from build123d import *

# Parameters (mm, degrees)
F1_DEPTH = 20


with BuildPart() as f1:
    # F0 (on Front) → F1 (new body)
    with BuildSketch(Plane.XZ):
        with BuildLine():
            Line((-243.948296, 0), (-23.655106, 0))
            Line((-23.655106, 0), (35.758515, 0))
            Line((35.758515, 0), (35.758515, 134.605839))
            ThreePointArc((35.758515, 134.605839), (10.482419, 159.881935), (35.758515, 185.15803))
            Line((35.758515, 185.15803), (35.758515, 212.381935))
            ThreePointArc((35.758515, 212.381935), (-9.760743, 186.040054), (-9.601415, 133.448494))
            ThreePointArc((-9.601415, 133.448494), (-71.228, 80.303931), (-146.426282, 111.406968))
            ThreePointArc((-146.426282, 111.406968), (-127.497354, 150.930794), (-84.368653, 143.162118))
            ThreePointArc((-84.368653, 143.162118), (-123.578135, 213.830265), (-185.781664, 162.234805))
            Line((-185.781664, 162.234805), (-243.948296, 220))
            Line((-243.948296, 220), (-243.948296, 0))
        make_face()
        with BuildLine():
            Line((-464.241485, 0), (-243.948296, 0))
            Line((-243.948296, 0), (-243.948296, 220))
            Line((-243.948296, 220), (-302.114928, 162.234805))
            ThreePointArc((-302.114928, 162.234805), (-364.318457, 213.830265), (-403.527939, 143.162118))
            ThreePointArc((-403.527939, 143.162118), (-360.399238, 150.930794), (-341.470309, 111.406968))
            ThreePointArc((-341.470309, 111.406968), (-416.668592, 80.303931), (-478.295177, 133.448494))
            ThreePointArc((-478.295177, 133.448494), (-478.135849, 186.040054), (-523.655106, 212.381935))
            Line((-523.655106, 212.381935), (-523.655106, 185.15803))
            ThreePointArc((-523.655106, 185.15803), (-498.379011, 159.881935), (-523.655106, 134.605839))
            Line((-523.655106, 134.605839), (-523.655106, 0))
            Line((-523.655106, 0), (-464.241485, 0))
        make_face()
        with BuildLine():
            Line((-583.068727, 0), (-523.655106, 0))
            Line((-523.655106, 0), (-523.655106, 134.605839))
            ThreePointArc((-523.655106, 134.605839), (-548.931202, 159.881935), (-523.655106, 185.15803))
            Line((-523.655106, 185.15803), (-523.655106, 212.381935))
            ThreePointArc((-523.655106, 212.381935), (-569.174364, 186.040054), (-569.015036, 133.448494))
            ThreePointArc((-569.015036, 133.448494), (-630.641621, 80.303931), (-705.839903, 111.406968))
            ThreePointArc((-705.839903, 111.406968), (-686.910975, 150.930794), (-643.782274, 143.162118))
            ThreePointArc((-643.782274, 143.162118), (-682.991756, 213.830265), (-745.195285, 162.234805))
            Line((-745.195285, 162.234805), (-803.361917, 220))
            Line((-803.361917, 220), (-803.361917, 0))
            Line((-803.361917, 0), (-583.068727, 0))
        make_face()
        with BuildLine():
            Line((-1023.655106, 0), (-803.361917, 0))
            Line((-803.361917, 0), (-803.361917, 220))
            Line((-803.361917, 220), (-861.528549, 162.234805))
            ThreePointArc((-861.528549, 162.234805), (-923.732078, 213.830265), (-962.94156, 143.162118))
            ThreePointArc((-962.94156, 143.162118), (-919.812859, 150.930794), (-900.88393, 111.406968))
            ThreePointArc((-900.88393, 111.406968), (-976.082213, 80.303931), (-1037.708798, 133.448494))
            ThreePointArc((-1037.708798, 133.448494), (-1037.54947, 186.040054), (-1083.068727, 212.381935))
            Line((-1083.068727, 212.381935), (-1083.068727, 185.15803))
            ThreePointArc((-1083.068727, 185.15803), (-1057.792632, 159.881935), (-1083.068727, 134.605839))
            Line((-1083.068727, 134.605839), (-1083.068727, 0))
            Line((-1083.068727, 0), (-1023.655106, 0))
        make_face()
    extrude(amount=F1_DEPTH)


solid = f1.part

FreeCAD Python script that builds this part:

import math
import FreeCAD as App
import Part
import Sketcher
from FreeCAD import Vector

doc = App.newDocument("Part")
body = doc.addObject("PartDesign::Body", "Body")

# Sketch on XZ plane
sketch1 = body.newObject("Sketcher::SketchObject", "Sketch")
sketch1.AttachmentSupport = (doc.getObject("XZ_Plane"), [""])
sketch1.MapMode = "FlatFace"
sketch1.addGeometry([
    Part.LineSegment(Vector(35.758515, 0, 0), Vector(35.758515, 134.605839, 0)),  # 0
    Part.ArcOfCircle(Part.Circle(Vector(35.758514, 159.881934, 0), Vector(0, 0, 1), 25.276096), math.radians(89.999999), math.radians(270.000001)),  # 1
    Part.LineSegment(Vector(35.758515, 185.15803, 0), Vector(35.758515, 212.381935, 0)),  # 2
    Part.ArcOfCircle(Part.Circle(Vector(35.758515, 159.881935, 0), Vector(0, 0, 1), 52.5), math.radians(90), math.radians(210.231439)),  # 3
    Part.ArcOfCircle(Part.Circle(Vector(-83.570226, 156.919474, 0), Vector(0, 0, 1), 77.603298), math.radians(-144.092638), math.radians(-17.604709)),  # 4
    Part.ArcOfCircle(Part.Circle(Vector(-111.030065, 118.74953, 0), Vector(0, 0, 1), 36.149763), math.radians(42.478855), math.radians(191.719179)),  # 5
    Part.ArcOfCircle(Part.Circle(Vector(-133.281664, 162.234805, 0), Vector(0, 0, 1), 52.5), math.radians(-21.302339), math.radians(180)),  # 6
    Part.LineSegment(Vector(-185.781664, 162.234805, 0), Vector(-243.948296, 220, 0)),  # 7
    Part.LineSegment(Vector(-243.948296, 220, 0), Vector(-302.114928, 162.234805, 0)),  # 8
    Part.ArcOfCircle(Part.Circle(Vector(-354.614928, 162.234805, 0), Vector(0, 0, 1), 52.5), math.radians(0), math.radians(201.302339)),  # 9
    Part.ArcOfCircle(Part.Circle(Vector(-376.866527, 118.749529, 0), Vector(0, 0, 1), 36.149764), math.radians(-11.719178), math.radians(137.521144)),  # 10
    Part.ArcOfCircle(Part.Circle(Vector(-404.326365, 156.919474, 0), Vector(0, 0, 1), 77.603299), math.radians(-162.395291), math.radians(-35.907362)),  # 11
    Part.ArcOfCircle(Part.Circle(Vector(-523.655107, 159.881935, 0), Vector(0, 0, 1), 52.5), math.radians(-30.231439), math.radians(89.999999)),  # 12
    Part.ArcOfCircle(Part.Circle(Vector(-523.655106, 159.881935, 0), Vector(0, 0, 1), 52.5), math.radians(90), math.radians(210.231439)),  # 13
    Part.ArcOfCircle(Part.Circle(Vector(-642.983847, 156.919474, 0), Vector(0, 0, 1), 77.603298), math.radians(-144.092638), math.radians(-17.604709)),  # 14
    Part.ArcOfCircle(Part.Circle(Vector(-670.443686, 118.74953, 0), Vector(0, 0, 1), 36.149763), math.radians(42.478855), math.radians(191.719179)),  # 15
    Part.ArcOfCircle(Part.Circle(Vector(-692.695285, 162.234805, 0), Vector(0, 0, 1), 52.5), math.radians(-21.302339), math.radians(180)),  # 16
    Part.LineSegment(Vector(-745.195285, 162.234805, 0), Vector(-803.361917, 220, 0)),  # 17
    Part.LineSegment(Vector(-803.361917, 220, 0), Vector(-861.528549, 162.234805, 0)),  # 18
    Part.ArcOfCircle(Part.Circle(Vector(-914.028549, 162.234805, 0), Vector(0, 0, 1), 52.5), math.radians(0), math.radians(201.302339)),  # 19
    Part.ArcOfCircle(Part.Circle(Vector(-936.280148, 118.749529, 0), Vector(0, 0, 1), 36.149764), math.radians(-11.719178), math.radians(137.521144)),  # 20
    Part.ArcOfCircle(Part.Circle(Vector(-963.739986, 156.919474, 0), Vector(0, 0, 1), 77.603299), math.radians(-162.395291), math.radians(-35.907362)),  # 21
    Part.ArcOfCircle(Part.Circle(Vector(-1083.068728, 159.881935, 0), Vector(0, 0, 1), 52.5), math.radians(-30.231439), math.radians(89.999999)),  # 22
    Part.LineSegment(Vector(-1083.068727, 212.381935, 0), Vector(-1083.068727, 185.15803, 0)),  # 23
    Part.ArcOfCircle(Part.Circle(Vector(-1083.068728, 159.881934, 0), Vector(0, 0, 1), 25.276096), math.radians(-89.999999), math.radians(89.999999)),  # 24
    Part.LineSegment(Vector(-1083.068727, 134.605839, 0), Vector(-1083.068727, 0, 0)),  # 25
    Part.LineSegment(Vector(-1083.068727, 0, 0), Vector(35.758515, 0, 0)),  # 26
    Part.Circle(Vector(-523.655106, 159.881934, 0), Vector(0, 0, 1), 25.276096),  # 27
], False)
sketch1.addConstraint([
    Sketcher.Constraint("Coincident", 0, 2, 1, 2),
    Sketcher.Constraint("Coincident", 1, 1, 2, 1),
    Sketcher.Constraint("Coincident", 2, 2, 3, 1),
    Sketcher.Constraint("Coincident", 3, 2, 4, 2),
    Sketcher.Constraint("Coincident", 4, 1, 5, 2),
    Sketcher.Constraint("Coincident", 5, 1, 6, 1),
    Sketcher.Constraint("Coincident", 6, 2, 7, 1),
    Sketcher.Constraint("Coincident", 7, 2, 8, 1),
    Sketcher.Constraint("Coincident", 8, 2, 9, 1),
    Sketcher.Constraint("Coincident", 9, 2, 10, 2),
    Sketcher.Constraint("Coincident", 10, 1, 11, 2),
    Sketcher.Constraint("Coincident", 11, 1, 12, 1),
    Sketcher.Constraint("Tangent", 12, 2, 13, 1),
    Sketcher.Constraint("Coincident", 13, 2, 14, 2),
    Sketcher.Constraint("Coincident", 14, 1, 15, 2),
    Sketcher.Constraint("Coincident", 15, 1, 16, 1),
    Sketcher.Constraint("Coincident", 16, 2, 17, 1),
    Sketcher.Constraint("Coincident", 17, 2, 18, 1),
    Sketcher.Constraint("Coincident", 18, 2, 19, 1),
    Sketcher.Constraint("Coincident", 19, 2, 20, 2),
    Sketcher.Constraint("Coincident", 20, 1, 21, 2),
    Sketcher.Constraint("Coincident", 21, 1, 22, 1),
    Sketcher.Constraint("Coincident", 22, 2, 23, 1),
    Sketcher.Constraint("Coincident", 23, 2, 24, 2),
    Sketcher.Constraint("Coincident", 24, 1, 25, 1),
    Sketcher.Constraint("Coincident", 25, 2, 26, 1),
    Sketcher.Constraint("Coincident", 26, 2, 0, 1),
    Sketcher.Constraint("Vertical", 0),
    Sketcher.Constraint("Vertical", 2),
    Sketcher.Constraint("Vertical", 23),
    Sketcher.Constraint("Vertical", 25),
    Sketcher.Constraint("Horizontal", 26),
    Sketcher.Constraint("Coincident", 3, 3, 1, 3),
    Sketcher.Constraint("Coincident", 24, 3, 22, 3),
    Sketcher.Constraint("Coincident", 27, 3, 12, 3),
    Sketcher.Constraint("Equal", 3, 6),
    Sketcher.Constraint("Equal", 6, 9),
    Sketcher.Constraint("Equal", 5, 10),
    Sketcher.Constraint("Equal", 4, 11),
    Sketcher.Constraint("Equal", 9, 12),
    Sketcher.Constraint("Equal", 12, 13),
    Sketcher.Constraint("Equal", 11, 14),
    Sketcher.Constraint("Equal", 10, 15),
    Sketcher.Constraint("Equal", 13, 16),
    Sketcher.Constraint("Equal", 16, 19),
    Sketcher.Constraint("Equal", 15, 20),
    Sketcher.Constraint("Equal", 14, 21),
    Sketcher.Constraint("Equal", 19, 22),
    Sketcher.Constraint("Equal", 1, 24),
    Sketcher.Constraint("Equal", 24, 27),
    Sketcher.Constraint("PointOnObject", 25, 2, -1),
    Sketcher.Constraint("Parallel", 7, 17),
    Sketcher.Constraint("Parallel", 8, 18),
    Sketcher.Constraint("Horizontal", 6, 3, 9, 3),
    Sketcher.Constraint("Horizontal", 5, 3, 10, 3),
    Sketcher.Constraint("Horizontal", 4, 3, 11, 3),
    Sketcher.Constraint("Horizontal", 3, 3, 12, 3),
    Sketcher.Constraint("Horizontal", 11, 3, 14, 3),
    Sketcher.Constraint("Horizontal", 10, 3, 15, 3),
    Sketcher.Constraint("Horizontal", 9, 3, 16, 3),
    Sketcher.Constraint("Horizontal", 16, 3, 19, 3),
    Sketcher.Constraint("Horizontal", 15, 3, 20, 3),
    Sketcher.Constraint("Horizontal", 14, 3, 21, 3),
    Sketcher.Constraint("Horizontal", 13, 3, 22, 3),
    Sketcher.Constraint("Horizontal", 19, 3, 6, 2),
    Sketcher.Constraint("Horizontal", 6, 2, 8, 2),
    Sketcher.Constraint("Horizontal", 5, 1, 9, 2),
    Sketcher.Constraint("Horizontal", 4, 1, 10, 1),
    Sketcher.Constraint("Horizontal", 3, 2, 11, 1),
    Sketcher.Constraint("Horizontal", 11, 1, 13, 2),
    Sketcher.Constraint("Horizontal", 10, 1, 14, 1),
    Sketcher.Constraint("Horizontal", 9, 2, 15, 1),
    Sketcher.Constraint("Horizontal", 8, 2, 16, 2),
    Sketcher.Constraint("Horizontal", 7, 2, 17, 2),
    Sketcher.Constraint("Horizontal", 16, 2, 18, 2),
    Sketcher.Constraint("Horizontal", 15, 1, 19, 2),
    Sketcher.Constraint("Horizontal", 14, 1, 20, 1),
    Sketcher.Constraint("Horizontal", 13, 2, 21, 1),
    Sketcher.Constraint("Vertical", 3, 3, 0, 2),
    Sketcher.Constraint("Vertical", 0, 2, 1, 1),
    Sketcher.Constraint("Vertical", 27, 3, 12, 2),
    Sketcher.Constraint("Vertical", 24, 3, 22, 2),
    Sketcher.Constraint("Vertical", 23, 2, 24, 1),
    Sketcher.Constraint("Equal", 7, 8),
    Sketcher.Constraint("Radius", 3, 52.5),
    Sketcher.Constraint("DistanceY", -1, 1, 7, 2, 220.0),
    Sketcher.Constraint("Radius", 4, 77.603298),
    Sketcher.Constraint("Diameter", 27, 50.552191),
    Sketcher.Constraint("Radius", 5, 36.149763),
    Sketcher.Constraint("DistanceX", 26, 1, 26, 2, 1118.827242),
    Sketcher.Constraint("DistanceY", 0, 1, 0, 2, 134.605839),
    Sketcher.Constraint("DistanceX", 6, 3, 5, 3, 22.251599),
    Sketcher.Constraint("DistanceX", 9, 3, 4, 3, 271.044702),
    Sketcher.Constraint("DistanceY", 5, 3, 1, 1, 66.4085),
    Sketcher.Constraint("DistanceX", 9, 3, -1, 1, 354.614928),
    Sketcher.Constraint("DistanceX", 4, 1, -1, 1, 146.426282),
    Sketcher.Constraint("DistanceY", -1, 1, 4, 1, 111.406968),
    Sketcher.Constraint("DistanceX", 9, 2, -1, 1, 403.527939),
])
pad1 = body.newObject("PartDesign::Pad", "Pad")
pad1.Profile = sketch1
pad1.Length = 20

doc.recompute()
